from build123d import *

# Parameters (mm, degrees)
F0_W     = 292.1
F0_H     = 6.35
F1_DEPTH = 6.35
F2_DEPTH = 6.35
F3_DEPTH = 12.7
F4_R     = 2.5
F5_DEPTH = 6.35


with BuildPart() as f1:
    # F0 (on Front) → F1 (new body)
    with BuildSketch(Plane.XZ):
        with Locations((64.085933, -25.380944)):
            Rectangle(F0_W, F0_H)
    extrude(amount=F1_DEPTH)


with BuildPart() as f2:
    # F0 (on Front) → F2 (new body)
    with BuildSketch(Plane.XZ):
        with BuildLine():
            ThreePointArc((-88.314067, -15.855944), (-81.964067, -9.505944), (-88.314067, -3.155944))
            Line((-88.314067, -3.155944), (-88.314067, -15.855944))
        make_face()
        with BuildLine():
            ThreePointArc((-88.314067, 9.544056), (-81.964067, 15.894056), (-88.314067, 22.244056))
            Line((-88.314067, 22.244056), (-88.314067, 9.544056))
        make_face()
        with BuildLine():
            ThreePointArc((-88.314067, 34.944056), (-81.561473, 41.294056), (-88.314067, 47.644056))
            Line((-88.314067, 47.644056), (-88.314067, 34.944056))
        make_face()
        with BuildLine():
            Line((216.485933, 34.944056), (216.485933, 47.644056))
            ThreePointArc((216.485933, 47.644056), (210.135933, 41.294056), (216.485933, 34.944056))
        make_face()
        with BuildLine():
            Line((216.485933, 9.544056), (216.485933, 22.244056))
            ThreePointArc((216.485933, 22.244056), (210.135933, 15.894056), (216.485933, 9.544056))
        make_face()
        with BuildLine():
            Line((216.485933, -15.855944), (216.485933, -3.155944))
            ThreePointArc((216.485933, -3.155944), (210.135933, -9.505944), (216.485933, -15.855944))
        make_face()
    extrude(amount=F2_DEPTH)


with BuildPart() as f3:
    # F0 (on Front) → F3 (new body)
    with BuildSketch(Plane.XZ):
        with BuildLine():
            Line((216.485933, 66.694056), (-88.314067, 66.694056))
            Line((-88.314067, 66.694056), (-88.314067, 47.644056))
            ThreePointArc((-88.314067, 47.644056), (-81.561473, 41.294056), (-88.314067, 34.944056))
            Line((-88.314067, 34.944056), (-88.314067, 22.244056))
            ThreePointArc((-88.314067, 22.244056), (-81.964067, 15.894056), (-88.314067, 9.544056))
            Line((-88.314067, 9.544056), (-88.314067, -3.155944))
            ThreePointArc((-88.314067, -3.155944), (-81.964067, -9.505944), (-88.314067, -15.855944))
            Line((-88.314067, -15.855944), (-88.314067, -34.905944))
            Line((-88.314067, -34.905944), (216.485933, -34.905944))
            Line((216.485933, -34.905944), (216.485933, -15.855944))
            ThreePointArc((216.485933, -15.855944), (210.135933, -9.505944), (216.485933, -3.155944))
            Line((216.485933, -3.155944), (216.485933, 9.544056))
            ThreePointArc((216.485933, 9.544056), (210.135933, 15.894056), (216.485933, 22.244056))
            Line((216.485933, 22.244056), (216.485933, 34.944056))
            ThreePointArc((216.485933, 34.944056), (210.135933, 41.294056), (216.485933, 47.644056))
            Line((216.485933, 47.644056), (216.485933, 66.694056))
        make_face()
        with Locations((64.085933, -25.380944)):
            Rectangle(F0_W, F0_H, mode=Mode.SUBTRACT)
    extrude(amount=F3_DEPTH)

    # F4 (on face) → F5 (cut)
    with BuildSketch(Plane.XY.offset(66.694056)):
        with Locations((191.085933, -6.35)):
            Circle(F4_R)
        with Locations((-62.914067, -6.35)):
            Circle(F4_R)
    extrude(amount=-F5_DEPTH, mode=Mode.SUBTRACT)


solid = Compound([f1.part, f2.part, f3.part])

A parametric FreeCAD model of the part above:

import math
import FreeCAD as App
import Part
import Sketcher
from FreeCAD import Vector
Q = App.Units.Quantity


def add_polygon(sketch, points):
    """Adds a closed chain of lines whose ends are joined by coincident constraints."""
    first, n = sketch.GeometryCount, len(points)
    for a, b in zip(points, points[1:] + points[:1]):
        sketch.addGeometry(Part.LineSegment(App.Vector(*a, 0), App.Vector(*b, 0)), False)
    for i in range(n):
        sketch.addConstraint(Sketcher.Constraint("Coincident", first + i, 2, first + (i + 1) % n, 1))

doc = App.newDocument("Part")
params = doc.addObject("Spreadsheet::Sheet", "Params")
for row, (alias, value) in enumerate([
    ("sketch1_width", "11.5 in"),
    ("sketch1_height", "0.25 in"),
    ("pad1_length", "0.25 in"),
    ("sketch2_radius", "0.25 in"),
    ("pad2_length", "0.25 in"),
    ("sketch3_width", "12 in"),
    ("sketch3_radius", "0.25 in"),
    ("sketch3_width2", "11.5 in"),
    ("sketch3_height", "0.5 in"),
    ("sketch3_height2", "0.25 in"),
    ("pad3_length", "0.5 in"),
    ("pocket1_length", "0.25 in"),
], start=1):
    params.set(f"A{row}", alias)
    params.set(f"B{row}", "=" + value)
    params.setAlias(f"B{row}", alias)

body = doc.addObject("PartDesign::Body", "Body")

# Sketch on XZ plane
sketch1 = body.newObject("Sketcher::SketchObject", "Sketch")
sketch1.AttachmentSupport = (doc.getObject("XZ_Plane"), [""])
sketch1.MapMode = "FlatFace"
add_polygon(sketch1, [(-82, -22), (-82, -29), (210, -29), (210, -22)])  # lines 0-3
sketch1.addConstraint([
    Sketcher.Constraint("Vertical", 0),
    Sketcher.Constraint("Horizontal", 1),
    Sketcher.Constraint("Vertical", 2),
    Sketcher.Constraint("Horizontal", 3),
    Sketcher.Constraint("DistanceX", 1, 1, 1, 2, Q("11.5 in")),
    Sketcher.Constraint("DistanceY", 0, 2, 0, 1, Q("0.25 in")),
    Sketcher.Constraint("DistanceX", 0, 2, -1, 1, Q("81.964067 mm")),
    Sketcher.Constraint("DistanceY", 0, 2, -1, 1, Q("28.555944 mm")),
])
sketch1.setExpression("Constraints[8]", "Params.sketch1_width")
sketch1.setExpression("Constraints[9]", "Params.sketch1_height")
pad1 = body.newObject("PartDesign::Pad", "Pad")
pad1.Profile = sketch1
pad1.setExpression("Length", "Params.pad1_length")
body2 = doc.addObject("PartDesign::Body", "Body001")
body2.AllowCompound = True

# Sketch on XZ plane
sketch2 = body2.newObject("Sketcher::SketchObject", "Sketch001")
sketch2.AttachmentSupport = (doc.getObject("XZ_Plane001"), [""])
sketch2.MapMode = "FlatFace"
sketch2.addGeometry([
    Part.ArcOfCircle(Part.Circle(Vector(-88.314067, -9.505944, 0), Vector(0, 0, 1), 6.35), math.radians(-90), math.radians(90)),  # 0
    Part.LineSegment(Vector(-88.314067, -3.155944, 0), Vector(-88.314067, -15.855944, 0)),  # 1
    Part.ArcOfCircle(Part.Circle(Vector(-88.314067, 15.894056, 0), Vector(0, 0, 1), 6.35), math.radians(-90), math.radians(90)),  # 2
    Part.LineSegment(Vector(-88.314067, 22.244056, 0), Vector(-88.314067, 9.544056, 0)),  # 3
    Part.ArcOfCircle(Part.Circle(Vector(-87.923474, 41.294056, 0), Vector(0, 0, 1), 6.362001), math.radians(-93.519865), math.radians(93.519865)),  # 4
    Part.LineSegment(Vector(-88.314067, 47.644056, 0), Vector(-88.314067, 34.944056, 0)),  # 5
    Part.LineSegment(Vector(216.485933, 34.944056, 0), Vector(216.485933, 47.644056, 0)),  # 6
    Part.ArcOfCircle(Part.Circle(Vector(216.485933, 41.294056, 0), Vector(0, 0, 1), 6.35), math.radians(90), math.radians(270)),  # 7
    Part.LineSegment(Vector(216.485933, 9.544056, 0), Vector(216.485933, 22.244056, 0)),  # 8
    Part.ArcOfCircle(Part.Circle(Vector(216.485933, 15.894056, 0), Vector(0, 0, 1), 6.35), math.radians(90), math.radians(270)),  # 9
    Part.LineSegment(Vector(216.485933, -15.855944, 0), Vector(216.485933, -3.155944, 0)),  # 10
    Part.ArcOfCircle(Part.Circle(Vector(216.485933, -9.505944, 0), Vector(0, 0, 1), 6.35), math.radians(90), math.radians(270)),  # 11
], False)
sketch2.addConstraint([
    Sketcher.Constraint("Coincident", 0, 1, 1, 2),
    Sketcher.Constraint("Coincident", 1, 1, 0, 2),
    Sketcher.Constraint("Coincident", 2, 1, 3, 2),
    Sketcher.Constraint("Coincident", 3, 1, 2, 2),
    Sketcher.Constraint("Coincident", 4, 1, 5, 2),
    Sketcher.Constraint("Coincident", 5, 1, 4, 2),
    Sketcher.Constraint("Coincident", 6, 1, 7, 2),
    Sketcher.Constraint("Coincident", 7, 1, 6, 2),
    Sketcher.Constraint("Coincident", 8, 1, 9, 2),
    Sketcher.Constraint("Coincident", 9, 1, 8, 2),
    Sketcher.Constraint("Coincident", 10, 1, 11, 2),
    Sketcher.Constraint("Coincident", 11, 1, 10, 2),
    Sketcher.Constraint("Vertical", 1),
    Sketcher.Constraint("Vertical", 3),
    Sketcher.Constraint("Vertical", 5),
    Sketcher.Constraint("Vertical", 6),
    Sketcher.Constraint("Vertical", 8),
    Sketcher.Constraint("Vertical", 10),
    Sketcher.Constraint("Equal", 0, 2),
    Sketcher.Constraint("Equal", 2, 7),
    Sketcher.Constraint("Equal", 7, 9),
    Sketcher.Constraint("Equal", 9, 11),
    Sketcher.Constraint("Horizontal", 4, 3, 7, 3),
    Sketcher.Constraint("Horizontal", 2, 3, 9, 3),
    Sketcher.Constraint("Horizontal", 0, 3, 11, 3),
    Sketcher.Constraint("Horizontal", 4, 1, 6, 1),
    Sketcher.Constraint("Vertical", 0, 3, 2, 3),
    Sketcher.Constraint("Vertical", 7, 3, 9, 3),
    Sketcher.Constraint("Vertical", 9, 3, 11, 3),
    Sketcher.Constraint("Vertical", 2, 3, 0, 1),
    Sketcher.Constraint("Vertical", 1, 1, 2, 1),
    Sketcher.Constraint("Vertical", 3, 1, 4, 1),
    Sketcher.Constraint("Vertical", 11, 3, 6, 1),
    Sketcher.Constraint("Vertical", 7, 1, 8, 1),
    Sketcher.Constraint("Vertical", 9, 1, 10, 1),
    Sketcher.Constraint("Radius", 0, Q("0.25 in")),
    Sketcher.Constraint("DistanceY", 0, 3, 2, 3, Q("1 in")),
    Sketcher.Constraint("DistanceY", 2, 3, 4, 3, Q("1 in")),
    Sketcher.Constraint("DistanceX", 2, 3, 7, 3, Q("12 in")),
    Sketcher.Constraint("Radius", 4, Q("6.362001 mm")),
    Sketcher.Constraint("DistanceX", 0, 3, -1, 1, Q("88.314067 mm")),
    Sketcher.Constraint("DistanceY", 0, 3, -1, 1, Q("9.505944 mm")),
])
sketch2.setExpression("Constraints[35]", "Params.sketch2_radius")
pad2 = body2.newObject("PartDesign::Pad", "Pad001")
pad2.Profile = sketch2
pad2.setExpression("Length", "Params.pad2_length")
body3 = doc.addObject("PartDesign::Body", "Body002")

# Sketch on XZ plane
sketch3 = body3.newObject("Sketcher::SketchObject", "Sketch002")
sketch3.AttachmentSupport = (doc.getObject("XZ_Plane002"), [""])
sketch3.MapMode = "FlatFace"
sketch3.addGeometry(Part.LineSegment(Vector(216, 67, 0), Vector(-88, 67, 0)), False)  # 0
sketch3.addGeometry(Part.LineSegment(Vector(-88, 67, 0), Vector(-88, 48, 0)), False)  # 1
sketch3.addGeometry(Part.ArcOfCircle(Part.Circle(Vector(-88, 41, 0), Vector(0, 0, 1), 6), math.radians(-94), math.radians(94)), False)  # 2
sketch3.addGeometry(Part.LineSegment(Vector(-88, 35, 0), Vector(-88, 22, 0)), False)  # 3
sketch3.addGeometry(Part.ArcOfCircle(Part.Circle(Vector(-88, 16, 0), Vector(0, 0, 1), 6), math.radians(-90), math.radians(90)), False)  # 4
sketch3.addGeometry(Part.LineSegment(Vector(-88, 10, 0), Vector(-88, -3, 0)), False)  # 5
sketch3.addGeometry(Part.ArcOfCircle(Part.Circle(Vector(-88, -10, 0), Vector(0, 0, 1), 6), math.radians(-90), math.radians(90)), False)  # 6
sketch3.addGeometry(Part.LineSegment(Vector(-88, -16, 0), Vector(-88, -35, 0)), False)  # 7
sketch3.addGeometry(Part.LineSegment(Vector(-88, -35, 0), Vector(216, -35, 0)), False)  # 8
sketch3.addGeometry(Part.LineSegment(Vector(216, -35, 0), Vector(216, -16, 0)), False)  # 9
sketch3.addGeometry(Part.ArcOfCircle(Part.Circle(Vector(216, -10, 0), Vector(0, 0, 1), 6), math.radians(90), math.radians(270)), False)  # 10
sketch3.addGeometry(Part.LineSegment(Vector(216, -3, 0), Vector(216, 10, 0)), False)  # 11
sketch3.addGeometry(Part.ArcOfCircle(Part.Circle(Vector(216, 16, 0), Vector(0, 0, 1), 6), math.radians(90), math.radians(270)), False)  # 12
sketch3.addGeometry(Part.LineSegment(Vector(216, 22, 0), Vector(216, 35, 0)), False)  # 13
sketch3.addGeometry(Part.ArcOfCircle(Part.Circle(Vector(216, 41, 0), Vector(0, 0, 1), 6), math.radians(90), math.radians(270)), False)  # 14
sketch3.addGeometry(Part.LineSegment(Vector(216, 48, 0), Vector(216, 67, 0)), False)  # 15
add_polygon(sketch3, [(210, -29), (-82, -29), (-82, -22), (210, -22)])  # lines 16-19
sketch3.addConstraint([
    Sketcher.Constraint("Coincident", 0, 2, 1, 1),
    Sketcher.Constraint("Coincident", 1, 2, 2, 2),
    Sketcher.Constraint("Coincident", 2, 1, 3, 1),
    Sketcher.Constraint("Coincident", 3, 2, 4, 2),
    Sketcher.Constraint("Coincident", 4, 1, 5, 1),
    Sketcher.Constraint("Coincident", 5, 2, 6, 2),
    Sketcher.Constraint("Coincident", 6, 1, 7, 1),
    Sketcher.Constraint("Coincident", 7, 2, 8, 1),
    Sketcher.Constraint("Coincident", 8, 2, 9, 1),
    Sketcher.Constraint("Coincident", 9, 2, 10, 2),
    Sketcher.Constraint("Coincident", 10, 1, 11, 1),
    Sketcher.Constraint("Coincident", 11, 2, 12, 2),
    Sketcher.Constraint("Coincident", 12, 1, 13, 1),
    Sketcher.Constraint("Coincident", 13, 2, 14, 2),
    Sketcher.Constraint("Coincident", 14, 1, 15, 1),
    Sketcher.Constraint("Coincident", 15, 2, 0, 1),
    Sketcher.Constraint("Horizontal", 0),
    Sketcher.Constraint("Vertical", 1),
    Sketcher.Constraint("Vertical", 3),
    Sketcher.Constraint("Vertical", 5),
    Sketcher.Constraint("Vertical", 7),
    Sketcher.Constraint("Horizontal", 8),
    Sketcher.Constraint("Vertical", 9),
    Sketcher.Constraint("Vertical", 11),
    Sketcher.Constraint("Vertical", 13),
    Sketcher.Constraint("Vertical", 15),
    Sketcher.Constraint("Horizontal", 16),
    Sketcher.Constraint("Vertical", 17),
    Sketcher.Constraint("Horizontal", 18),
    Sketcher.Constraint("Vertical", 19),
    Sketcher.Constraint("Equal", 4, 6),
    Sketcher.Constraint("Equal", 6, 10),
    Sketcher.Constraint("Equal", 10, 12),
    Sketcher.Constraint("Equal", 12, 14),
    Sketcher.Constraint("Horizontal", 6, 3, 10, 3),
    Sketcher.Constraint("Horizontal", 4, 3, 12, 3),
    Sketcher.Constraint("Horizontal", 2, 3, 14, 3),
    Sketcher.Constraint("Horizontal", 2, 1, 13, 2),
    Sketcher.Constraint("Horizontal", 1, 2, 14, 1),
    Sketcher.Constraint("Vertical", 4, 3, 6, 3),
    Sketcher.Constraint("Vertical", 10, 3, 12, 3),
    Sketcher.Constraint("Vertical", 12, 3, 14, 3),
    Sketcher.Constraint("Vertical", 6, 3, 0, 2),
    Sketcher.Constraint("Vertical", 3, 2, 4, 1),
    Sketcher.Constraint("Vertical", 5, 2, 6, 1),
    Sketcher.Constraint("Vertical", 14, 3, 8, 2),
    Sketcher.Constraint("Vertical", 9, 2, 10, 1),
    Sketcher.Constraint("Vertical", 11, 2, 12, 1),
    Sketcher.Constraint("Vertical", 13, 2, 14, 1),
    Sketcher.Constraint("Equal", 3, 5),
    Sketcher.Constraint("Equal", 1, 7),
    Sketcher.Constraint("DistanceX", 0, 2, 0, 1, Q("12 in")),
    Sketcher.Constraint("Radius", 4, Q("0.25 in")),
    Sketcher.Constraint("DistanceX", 16, 2, 16, 1, Q("11.5 in")),
    Sketcher.Constraint("DistanceY", 3, 2, 3, 1, Q("0.5 in")),
    Sketcher.Constraint("DistanceY", 2, 3, 0, 2, Q("1 in")),
    Sketcher.Constraint("DistanceY", 16, 2, 5, 2, Q("1 in")),
    Sketcher.Constraint("DistanceY", 17, 1, 17, 2, Q("0.25 in")),
    Sketcher.Constraint("Radius", 2, Q("6.362001 mm")),
    Sketcher.Constraint("DistanceX", 7, 2, 16, 2, Q("0.25 in")),
    Sketcher.Constraint("DistanceX", 2, 3, -1, 1, Q("87.923474 mm")),
    Sketcher.Constraint("DistanceY", -1, 1, 2, 3, Q("41.294056 mm")),
])
sketch3.setExpression("Constraints[55]", "Params.sketch3_width")
sketch3.setExpression("Constraints[56]", "Params.sketch3_radius")
sketch3.setExpression("Constraints[57]", "Params.sketch3_width2")
sketch3.setExpression("Constraints[58]", "Params.sketch3_height")
sketch3.setExpression("Constraints[61]", "Params.sketch3_height2")
pad3 = body3.newObject("PartDesign::Pad", "Pad002")
pad3.Profile = sketch3
pad3.setExpression("Length", "Params.pad3_length")

# Sketch on XY plane
sketch4 = body3.newObject("Sketcher::SketchObject", "Sketch003")
sketch4.AttachmentSupport = (doc.getObject("XY_Plane002"), [""])
sketch4.MapMode = "FlatFace"
sketch4.AttachmentOffset = App.Placement(Vector(0, 0, 66.694056), App.Rotation())
sketch4.addGeometry([
    Part.Circle(Vector(191.1, -6.3, 0), Vector(0, 0, 1), 2.5),
    Part.Circle(Vector(-62.9, -6.3, 0), Vector(0, 0, 1), 2.5),
], False)
sketch4.addConstraint([
    Sketcher.Constraint("Equal", 0, 1),
    Sketcher.Constraint("Horizontal", 0, 3, 1, 3),
    Sketcher.Constraint("DistanceX", 1, 3, 0, 3, Q("10 in")),
    Sketcher.Constraint("Diameter", 0, Q("5 mm")),
    Sketcher.Constraint("DistanceY", 0, 3, -1, 1, Q("0.25 in")),
    Sketcher.Constraint("DistanceX", -1, 1, 0, 3, Q("191.085933 mm")),
])
pocket1 = body3.newObject("PartDesign::Pocket", "Pocket")
pocket1.Profile = sketch4
pocket1.setExpression("Length", "Params.pocket1_length")

doc.recompute()
